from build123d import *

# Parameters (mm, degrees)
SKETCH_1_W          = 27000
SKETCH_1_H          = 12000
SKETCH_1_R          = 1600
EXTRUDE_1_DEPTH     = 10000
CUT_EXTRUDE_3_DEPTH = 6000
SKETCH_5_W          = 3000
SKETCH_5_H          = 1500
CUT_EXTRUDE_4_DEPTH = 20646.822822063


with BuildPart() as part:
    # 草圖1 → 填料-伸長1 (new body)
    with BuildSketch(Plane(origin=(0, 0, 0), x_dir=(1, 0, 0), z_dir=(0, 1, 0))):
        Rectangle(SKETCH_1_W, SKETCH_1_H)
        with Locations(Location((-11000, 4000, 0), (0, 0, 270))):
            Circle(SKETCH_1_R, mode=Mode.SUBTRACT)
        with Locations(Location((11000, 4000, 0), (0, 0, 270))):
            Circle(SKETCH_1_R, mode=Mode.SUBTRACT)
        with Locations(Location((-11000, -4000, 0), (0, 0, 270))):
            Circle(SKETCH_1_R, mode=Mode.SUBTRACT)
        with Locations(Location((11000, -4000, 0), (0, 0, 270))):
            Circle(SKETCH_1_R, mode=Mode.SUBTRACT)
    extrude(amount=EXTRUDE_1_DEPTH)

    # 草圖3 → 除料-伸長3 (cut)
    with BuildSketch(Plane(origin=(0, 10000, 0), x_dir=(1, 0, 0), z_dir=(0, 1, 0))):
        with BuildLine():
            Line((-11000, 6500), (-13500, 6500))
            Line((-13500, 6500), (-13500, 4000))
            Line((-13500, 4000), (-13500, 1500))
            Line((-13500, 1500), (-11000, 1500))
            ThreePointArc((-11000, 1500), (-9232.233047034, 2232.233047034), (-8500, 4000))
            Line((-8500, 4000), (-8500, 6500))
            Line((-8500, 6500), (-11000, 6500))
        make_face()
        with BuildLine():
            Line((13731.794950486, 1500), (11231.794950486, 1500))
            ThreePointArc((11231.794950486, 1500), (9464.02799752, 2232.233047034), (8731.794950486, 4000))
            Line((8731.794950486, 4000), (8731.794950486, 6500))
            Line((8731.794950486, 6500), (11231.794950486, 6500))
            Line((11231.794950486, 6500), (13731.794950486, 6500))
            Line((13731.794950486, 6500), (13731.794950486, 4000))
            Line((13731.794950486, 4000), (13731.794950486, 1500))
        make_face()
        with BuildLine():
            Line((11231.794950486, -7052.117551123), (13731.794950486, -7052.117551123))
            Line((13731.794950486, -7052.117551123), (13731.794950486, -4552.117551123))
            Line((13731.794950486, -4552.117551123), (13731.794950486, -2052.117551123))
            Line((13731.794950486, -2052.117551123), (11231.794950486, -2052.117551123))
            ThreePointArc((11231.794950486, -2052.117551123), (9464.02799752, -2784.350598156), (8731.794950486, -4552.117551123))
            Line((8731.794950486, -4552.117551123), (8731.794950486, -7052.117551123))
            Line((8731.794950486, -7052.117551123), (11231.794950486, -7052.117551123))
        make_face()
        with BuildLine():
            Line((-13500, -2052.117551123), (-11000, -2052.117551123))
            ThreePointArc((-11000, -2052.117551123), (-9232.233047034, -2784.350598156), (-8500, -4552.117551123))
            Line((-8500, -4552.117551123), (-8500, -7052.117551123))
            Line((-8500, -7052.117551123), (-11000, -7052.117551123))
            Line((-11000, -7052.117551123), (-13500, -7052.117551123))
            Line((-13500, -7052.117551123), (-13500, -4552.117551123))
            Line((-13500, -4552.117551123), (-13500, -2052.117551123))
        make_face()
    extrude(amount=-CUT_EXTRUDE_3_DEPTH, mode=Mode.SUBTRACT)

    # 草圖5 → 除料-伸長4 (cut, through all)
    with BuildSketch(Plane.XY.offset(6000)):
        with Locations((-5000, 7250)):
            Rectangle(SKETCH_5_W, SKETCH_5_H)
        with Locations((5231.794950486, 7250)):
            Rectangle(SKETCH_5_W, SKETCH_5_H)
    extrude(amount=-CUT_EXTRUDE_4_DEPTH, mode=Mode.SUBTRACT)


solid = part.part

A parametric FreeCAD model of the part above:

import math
import FreeCAD as App
import Part
import Sketcher
Q = App.Units.Quantity


def add_polygon(sketch, points):
    """Adds a closed chain of lines whose ends are joined by coincident constraints."""
    first, n = sketch.GeometryCount, len(points)
    for a, b in zip(points, points[1:] + points[:1]):
        sketch.addGeometry(Part.LineSegment(App.Vector(*a, 0), App.Vector(*b, 0)), False)
    for i in range(n):
        sketch.addConstraint(Sketcher.Constraint("Coincident", first + i, 2, first + (i + 1) % n, 1))

doc = App.newDocument("Part")
body = doc.addObject("PartDesign::Body", "Body")

sketch1 = body.newObject("Sketcher::SketchObject", "Sketch")
sketch1.AttachmentSupport = (doc.getObject("XZ_Plane"), [""])
sketch1.MapMode = "FlatFace"
add_polygon(sketch1, [(-13500, -6000), (-13500, 6000), (13500, 6000), (13500, -6000)])
sketch1.addGeometry(Part.Circle(App.Vector(-11000, 4000, 0), App.Vector(0, 0, 1), 1600), False)
sketch1.addGeometry(Part.Circle(App.Vector(11000, 4000, 0), App.Vector(0, 0, 1), 1600), False)
sketch1.addGeometry(Part.Circle(App.Vector(-11000, -4000, 0), App.Vector(0, 0, 1), 1600), False)
sketch1.addGeometry(Part.Circle(App.Vector(11000, -4000, 0), App.Vector(0, 0, 1), 1600), False)
sketch1.addConstraint(Sketcher.Constraint("Vertical", 0))
sketch1.addConstraint(Sketcher.Constraint("Horizontal", 1))
sketch1.addConstraint(Sketcher.Constraint("Vertical", 2))
sketch1.addConstraint(Sketcher.Constraint("Horizontal", 3))
sketch1.addConstraint(Sketcher.Constraint("Equal", 4, 5))
sketch1.addConstraint(Sketcher.Constraint("Equal", 5, 6))
sketch1.addConstraint(Sketcher.Constraint("Equal", 6, 7))
sketch1.addConstraint(Sketcher.Constraint("Symmetric", 5, 3, 6, 3, -1, 1))
sketch1.addConstraint(Sketcher.Constraint("Symmetric", 4, 3, 7, 3, -1, 1))
sketch1.addConstraint(Sketcher.Constraint("Symmetric", 0, 2, 2, 2, -1, 1))
sketch1.addConstraint(Sketcher.Constraint("Symmetric", 4, 3, 5, 3, -2))
sketch1.addConstraint(Sketcher.Constraint("Diameter", 4, Q("3200 mm")))
sketch1.addConstraint(Sketcher.Constraint("DistanceX", 1, 1, 1, 2, Q("27000 mm")))
sketch1.addConstraint(Sketcher.Constraint("DistanceY", 0, 1, 0, 2, Q("12000 mm")))
sketch1.addConstraint(Sketcher.Constraint("DistanceX", 4, 3, -1, 1, Q("11000 mm")))
sketch1.addConstraint(Sketcher.Constraint("DistanceY", -1, 1, 4, 3, Q("4000 mm")))
pad1 = body.newObject("PartDesign::Pad", "Pad")
pad1.Profile = sketch1
pad1.Length = 10000
pad1.Reversed = True

sketch2 = body.newObject("Sketcher::SketchObject", "Sketch001")
sketch2.AttachmentSupport = (doc.getObject("XZ_Plane"), [""])
sketch2.MapMode = "FlatFace"
sketch2.AttachmentOffset = App.Placement(App.Vector(0, 0, -10000), App.Rotation())
sketch2.addGeometry(Part.LineSegment(App.Vector(-13500, -6500, 0), App.Vector(-13500, -1500, 0)), False)
sketch2.addGeometry(Part.LineSegment(App.Vector(-13500, -1500, 0), App.Vector(-11000, -1500, 0)), False)
sketch2.addGeometry(Part.ArcOfCircle(Part.Circle(App.Vector(-11000, -4000, 0), App.Vector(0, 0, 1), 2500), math.radians(0), math.radians(90)), False)
sketch2.addGeometry(Part.LineSegment(App.Vector(-8500, -4000, 0), App.Vector(-8500, -6500, 0)), False)
sketch2.addGeometry(Part.LineSegment(App.Vector(-8500, -6500, 0), App.Vector(-13500, -6500, 0)), False)
sketch2.addGeometry(Part.LineSegment(App.Vector(11232, -1500, 0), App.Vector(13732, -1500, 0)), False)
sketch2.addGeometry(Part.LineSegment(App.Vector(13732, -1500, 0), App.Vector(13732, -6500, 0)), False)
sketch2.addGeometry(Part.LineSegment(App.Vector(13732, -6500, 0), App.Vector(8732, -6500, 0)), False)
sketch2.addGeometry(Part.LineSegment(App.Vector(8732, -6500, 0), App.Vector(8732, -4000, 0)), False)
sketch2.addGeometry(Part.ArcOfCircle(Part.Circle(App.Vector(11232, -4000, 0), App.Vector(0, 0, 1), 2500), math.radians(90), math.radians(180)), False)
sketch2.addGeometry(Part.LineSegment(App.Vector(13732, 7052, 0), App.Vector(13732, 2052, 0)), False)
sketch2.addGeometry(Part.LineSegment(App.Vector(13732, 2052, 0), App.Vector(11232, 2052, 0)), False)
sketch2.addGeometry(Part.ArcOfCircle(Part.Circle(App.Vector(11232, 4552, 0), App.Vector(0, 0, 1), 2500), math.radians(180), math.radians(270)), False)
sketch2.addGeometry(Part.LineSegment(App.Vector(8732, 4552, 0), App.Vector(8732, 7052, 0)), False)
sketch2.addGeometry(Part.LineSegment(App.Vector(8732, 7052, 0), App.Vector(13732, 7052, 0)), False)
sketch2.addGeometry(Part.LineSegment(App.Vector(-11000, 2052, 0), App.Vector(-13500, 2052, 0)), False)
sketch2.addGeometry(Part.LineSegment(App.Vector(-13500, 2052, 0), App.Vector(-13500, 7052, 0)), False)
sketch2.addGeometry(Part.LineSegment(App.Vector(-13500, 7052, 0), App.Vector(-8500, 7052, 0)), False)
sketch2.addGeometry(Part.LineSegment(App.Vector(-8500, 7052, 0), App.Vector(-8500, 4552, 0)), False)
sketch2.addGeometry(Part.ArcOfCircle(Part.Circle(App.Vector(-11000, 4552, 0), App.Vector(0, 0, 1), 2500), math.radians(-90), math.radians(0)), False)
sketch2.addConstraint(Sketcher.Constraint("Coincident", 0, 2, 1, 1))
sketch2.addConstraint(Sketcher.Constraint("Coincident", 1, 2, 2, 2))
sketch2.addConstraint(Sketcher.Constraint("Coincident", 2, 1, 3, 1))
sketch2.addConstraint(Sketcher.Constraint("Coincident", 3, 2, 4, 1))
sketch2.addConstraint(Sketcher.Constraint("Coincident", 4, 2, 0, 1))
sketch2.addConstraint(Sketcher.Constraint("Coincident", 5, 2, 6, 1))
sketch2.addConstraint(Sketcher.Constraint("Coincident", 6, 2, 7, 1))
sketch2.addConstraint(Sketcher.Constraint("Coincident", 7, 2, 8, 1))
sketch2.addConstraint(Sketcher.Constraint("Coincident", 8, 2, 9, 2))
sketch2.addConstraint(Sketcher.Constraint("Coincident", 9, 1, 5, 1))
sketch2.addConstraint(Sketcher.Constraint("Coincident", 10, 2, 11, 1))
sketch2.addConstraint(Sketcher.Constraint("Coincident", 11, 2, 12, 2))
sketch2.addConstraint(Sketcher.Constraint("Coincident", 12, 1, 13, 1))
sketch2.addConstraint(Sketcher.Constraint("Coincident", 13, 2, 14, 1))
sketch2.addConstraint(Sketcher.Constraint("Coincident", 14, 2, 10, 1))
sketch2.addConstraint(Sketcher.Constraint("Coincident", 15, 2, 16, 1))
sketch2.addConstraint(Sketcher.Constraint("Coincident", 16, 2, 17, 1))
sketch2.addConstraint(Sketcher.Constraint("Coincident", 17, 2, 18, 1))
sketch2.addConstraint(Sketcher.Constraint("Coincident", 18, 2, 19, 2))
sketch2.addConstraint(Sketcher.Constraint("Coincident", 19, 1, 15, 1))
sketch2.addConstraint(Sketcher.Constraint("Vertical", 0))
sketch2.addConstraint(Sketcher.Constraint("Horizontal", 1))
sketch2.addConstraint(Sketcher.Constraint("Vertical", 3))
sketch2.addConstraint(Sketcher.Constraint("Horizontal", 4))
sketch2.addConstraint(Sketcher.Constraint("Horizontal", 5))
sketch2.addConstraint(Sketcher.Constraint("Vertical", 6))
sketch2.addConstraint(Sketcher.Constraint("Horizontal", 7))
sketch2.addConstraint(Sketcher.Constraint("Vertical", 8))
sketch2.addConstraint(Sketcher.Constraint("Vertical", 10))
sketch2.addConstraint(Sketcher.Constraint("Horizontal", 11))
sketch2.addConstraint(Sketcher.Constraint("Vertical", 13))
sketch2.addConstraint(Sketcher.Constraint("Horizontal", 14))
sketch2.addConstraint(Sketcher.Constraint("Horizontal", 15))
sketch2.addConstraint(Sketcher.Constraint("Vertical", 16))
sketch2.addConstraint(Sketcher.Constraint("Horizontal", 17))
sketch2.addConstraint(Sketcher.Constraint("Vertical", 18))
sketch2.addConstraint(Sketcher.Constraint("Equal", 2, 9))
sketch2.addConstraint(Sketcher.Constraint("Equal", 9, 12))
sketch2.addConstraint(Sketcher.Constraint("Equal", 12, 19))
sketch2.addConstraint(Sketcher.Constraint("Horizontal", 2, 3, 9, 3))
sketch2.addConstraint(Sketcher.Constraint("Horizontal", 12, 3, 19, 3))
sketch2.addConstraint(Sketcher.Constraint("Horizontal", 4, 2, 6, 2))
sketch2.addConstraint(Sketcher.Constraint("Horizontal", 14, 2, 16, 2))
sketch2.addConstraint(Sketcher.Constraint("Vertical", 9, 3, 12, 3))
sketch2.addConstraint(Sketcher.Constraint("Vertical", 2, 3, 19, 3))
sketch2.addConstraint(Sketcher.Constraint("Vertical", 19, 3, 1, 2))
sketch2.addConstraint(Sketcher.Constraint("Vertical", 6, 2, 10, 2))
sketch2.addConstraint(Sketcher.Constraint("Vertical", 4, 2, 15, 2))
sketch2.addConstraint(Sketcher.Constraint("Equal", 1, 5))
sketch2.addConstraint(Sketcher.Constraint("Equal", 4, 7))
sketch2.addConstraint(Sketcher.Constraint("Equal", 5, 11))
sketch2.addConstraint(Sketcher.Constraint("Equal", 11, 15))
sketch2.addConstraint(Sketcher.Constraint("Equal", 17, 0))
sketch2.addConstraint(Sketcher.Constraint("Equal", 15, 3))
sketch2.addConstraint(Sketcher.Constraint("Equal", 3, 8))
sketch2.addConstraint(Sketcher.Constraint("Equal", 6, 10))
sketch2.addConstraint(Sketcher.Constraint("Equal", 8, 13))
sketch2.addConstraint(Sketcher.Constraint("Equal", 13, 18))
sketch2.addConstraint(Sketcher.Constraint("Radius", 2, Q("2500 mm")))
sketch2.addConstraint(Sketcher.Constraint("DistanceX", 1, 1, 1, 2, Q("2500 mm")))
sketch2.addConstraint(Sketcher.Constraint("DistanceX", 2, 3, -1, 1, Q("11000 mm")))
sketch2.addConstraint(Sketcher.Constraint("DistanceY", 2, 3, -1, 1, Q("4000 mm")))
sketch2.addConstraint(Sketcher.Constraint("DistanceX", -1, 1, 9, 3, Q("11231.79495 mm")))
sketch2.addConstraint(Sketcher.Constraint("DistanceY", -1, 1, 12, 3, Q("4552.117551 mm")))
pocket1 = body.newObject("PartDesign::Pocket", "Pocket")
pocket1.Profile = sketch2
pocket1.Length = 6000
pocket1.Reversed = True

sketch3 = body.newObject("Sketcher::SketchObject", "Sketch002")
sketch3.AttachmentSupport = (doc.getObject("XY_Plane"), [""])
sketch3.MapMode = "FlatFace"
sketch3.AttachmentOffset = App.Placement(App.Vector(0, 0, 6000), App.Rotation())
add_polygon(sketch3, [(-6500, 8000), (-6500, 6500), (-3500, 6500), (-3500, 8000)])
add_polygon(sketch3, [(3732, 8000), (3732, 6500), (6732, 6500), (6732, 8000)])
sketch3.addConstraint(Sketcher.Constraint("Vertical", 0))
sketch3.addConstraint(Sketcher.Constraint("Horizontal", 1))
sketch3.addConstraint(Sketcher.Constraint("Vertical", 2))
sketch3.addConstraint(Sketcher.Constraint("Horizontal", 3))
sketch3.addConstraint(Sketcher.Constraint("Vertical", 4))
sketch3.addConstraint(Sketcher.Constraint("Horizontal", 5))
sketch3.addConstraint(Sketcher.Constraint("Vertical", 6))
sketch3.addConstraint(Sketcher.Constraint("Horizontal", 7))
sketch3.addConstraint(Sketcher.Constraint("Horizontal", 1, 2, 4, 2))
sketch3.addConstraint(Sketcher.Constraint("Horizontal", 3, 2, 6, 2))
sketch3.addConstraint(Sketcher.Constraint("Equal", 3, 5))
sketch3.addConstraint(Sketcher.Constraint("DistanceX", 1, 1, 1, 2, Q("3000 mm")))
sketch3.addConstraint(Sketcher.Constraint("DistanceY", 0, 2, 0, 1, Q("1500 mm")))
sketch3.addConstraint(Sketcher.Constraint("DistanceX", 0, 2, -1, 1, Q("6500 mm")))
sketch3.addConstraint(Sketcher.Constraint("DistanceY", -1, 1, 0, 2, Q("6500 mm")))
sketch3.addConstraint(Sketcher.Constraint("DistanceX", -1, 1, 4, 2, Q("3731.79495 mm")))
pocket2 = body.newObject("PartDesign::Pocket", "Pocket001")
pocket2.Profile = sketch3
pocket2.Type = "ThroughAll"

doc.recompute()
